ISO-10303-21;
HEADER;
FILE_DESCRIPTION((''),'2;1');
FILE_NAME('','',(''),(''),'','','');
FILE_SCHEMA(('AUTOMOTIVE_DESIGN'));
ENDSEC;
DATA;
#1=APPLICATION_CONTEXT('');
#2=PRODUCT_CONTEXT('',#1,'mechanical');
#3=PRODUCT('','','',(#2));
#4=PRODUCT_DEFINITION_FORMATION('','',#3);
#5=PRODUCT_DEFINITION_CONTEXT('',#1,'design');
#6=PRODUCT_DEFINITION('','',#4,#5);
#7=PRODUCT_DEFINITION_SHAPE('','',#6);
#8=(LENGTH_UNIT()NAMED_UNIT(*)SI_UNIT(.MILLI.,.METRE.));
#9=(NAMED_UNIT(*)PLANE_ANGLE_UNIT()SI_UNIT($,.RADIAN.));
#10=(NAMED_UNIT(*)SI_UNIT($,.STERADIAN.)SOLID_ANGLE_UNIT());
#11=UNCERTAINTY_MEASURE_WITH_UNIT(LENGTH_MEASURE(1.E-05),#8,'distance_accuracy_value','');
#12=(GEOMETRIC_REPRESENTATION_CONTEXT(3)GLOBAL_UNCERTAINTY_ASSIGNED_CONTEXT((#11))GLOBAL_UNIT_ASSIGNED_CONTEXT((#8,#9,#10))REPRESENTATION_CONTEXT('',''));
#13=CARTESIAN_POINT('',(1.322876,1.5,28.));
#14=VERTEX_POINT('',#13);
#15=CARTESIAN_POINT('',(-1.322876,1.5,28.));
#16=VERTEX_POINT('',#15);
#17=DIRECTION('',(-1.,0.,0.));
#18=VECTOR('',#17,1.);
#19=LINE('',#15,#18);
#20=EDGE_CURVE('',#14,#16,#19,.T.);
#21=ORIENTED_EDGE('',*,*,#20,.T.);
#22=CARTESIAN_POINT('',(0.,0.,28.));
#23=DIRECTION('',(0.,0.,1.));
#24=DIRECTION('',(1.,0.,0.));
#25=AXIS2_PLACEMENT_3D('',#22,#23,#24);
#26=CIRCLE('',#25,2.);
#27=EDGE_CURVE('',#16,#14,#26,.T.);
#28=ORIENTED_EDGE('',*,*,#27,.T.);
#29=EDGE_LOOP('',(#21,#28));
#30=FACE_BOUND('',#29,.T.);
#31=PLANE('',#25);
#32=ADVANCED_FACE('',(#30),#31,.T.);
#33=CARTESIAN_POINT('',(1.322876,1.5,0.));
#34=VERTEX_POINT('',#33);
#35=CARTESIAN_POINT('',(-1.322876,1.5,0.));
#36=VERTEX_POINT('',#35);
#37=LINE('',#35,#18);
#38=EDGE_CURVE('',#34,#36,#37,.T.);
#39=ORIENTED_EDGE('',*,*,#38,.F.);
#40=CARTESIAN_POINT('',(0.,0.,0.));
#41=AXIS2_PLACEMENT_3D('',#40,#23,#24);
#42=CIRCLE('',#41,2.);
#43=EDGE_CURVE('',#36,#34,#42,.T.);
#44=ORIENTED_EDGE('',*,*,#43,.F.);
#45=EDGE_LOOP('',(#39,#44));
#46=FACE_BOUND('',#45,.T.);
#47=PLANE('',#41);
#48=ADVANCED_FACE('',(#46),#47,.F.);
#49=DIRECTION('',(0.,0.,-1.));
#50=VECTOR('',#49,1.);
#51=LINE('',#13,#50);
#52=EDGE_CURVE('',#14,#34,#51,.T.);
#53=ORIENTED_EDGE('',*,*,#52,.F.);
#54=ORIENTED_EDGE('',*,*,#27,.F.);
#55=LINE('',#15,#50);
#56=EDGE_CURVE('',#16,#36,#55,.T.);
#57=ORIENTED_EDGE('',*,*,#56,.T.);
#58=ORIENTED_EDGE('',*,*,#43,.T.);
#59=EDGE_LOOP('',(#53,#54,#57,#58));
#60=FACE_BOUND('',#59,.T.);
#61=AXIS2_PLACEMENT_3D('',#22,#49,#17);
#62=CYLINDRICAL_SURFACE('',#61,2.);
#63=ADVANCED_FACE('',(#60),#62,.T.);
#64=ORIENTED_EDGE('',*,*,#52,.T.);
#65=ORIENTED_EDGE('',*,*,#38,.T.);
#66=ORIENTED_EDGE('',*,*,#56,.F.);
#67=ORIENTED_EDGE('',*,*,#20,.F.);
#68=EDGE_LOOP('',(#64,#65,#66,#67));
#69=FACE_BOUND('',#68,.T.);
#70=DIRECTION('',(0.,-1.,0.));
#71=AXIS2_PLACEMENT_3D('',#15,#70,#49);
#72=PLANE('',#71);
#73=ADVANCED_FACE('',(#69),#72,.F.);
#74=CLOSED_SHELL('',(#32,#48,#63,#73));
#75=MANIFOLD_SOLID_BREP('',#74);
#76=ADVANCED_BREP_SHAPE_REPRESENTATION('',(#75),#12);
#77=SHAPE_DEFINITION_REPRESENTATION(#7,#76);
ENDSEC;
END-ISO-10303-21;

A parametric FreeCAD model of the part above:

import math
import FreeCAD as App
import Part
import Sketcher
from FreeCAD import Vector
Q = App.Units.Quantity

doc = App.newDocument("Part")
body = doc.addObject("PartDesign::Body", "Body")

sketch1 = body.newObject("Sketcher::SketchObject", "Sketch")
sketch1.AttachmentSupport = (doc.getObject("XY_Plane"), [""])
sketch1.MapMode = "FlatFace"
sketch1.addGeometry([
    Part.LineSegment(Vector(1.322876, 1.5, 0), Vector(-1.322876, 1.5, 0)),
    Part.ArcOfCircle(Part.Circle(Vector(0, 0, 0), Vector(0, 0, 1), 2), math.radians(131.409622), math.radians(408.590378)),
], False)
sketch1.addConstraint([
    Sketcher.Constraint("Coincident", 0, 1, 1, 2),
    Sketcher.Constraint("Coincident", 1, 1, 0, 2),
    Sketcher.Constraint("Horizontal", 0),
    Sketcher.Constraint("Coincident", 1, 3, -1, 1),
    Sketcher.Constraint("Radius", 1, Q("2 mm")),
    Sketcher.Constraint("DistanceY", -1, 1, 0, 1, Q("1.5 mm")),
])
pad1 = body.newObject("PartDesign::Pad", "Pad")
pad1.Profile = sketch1
pad1.Length = 28

doc.recompute()
